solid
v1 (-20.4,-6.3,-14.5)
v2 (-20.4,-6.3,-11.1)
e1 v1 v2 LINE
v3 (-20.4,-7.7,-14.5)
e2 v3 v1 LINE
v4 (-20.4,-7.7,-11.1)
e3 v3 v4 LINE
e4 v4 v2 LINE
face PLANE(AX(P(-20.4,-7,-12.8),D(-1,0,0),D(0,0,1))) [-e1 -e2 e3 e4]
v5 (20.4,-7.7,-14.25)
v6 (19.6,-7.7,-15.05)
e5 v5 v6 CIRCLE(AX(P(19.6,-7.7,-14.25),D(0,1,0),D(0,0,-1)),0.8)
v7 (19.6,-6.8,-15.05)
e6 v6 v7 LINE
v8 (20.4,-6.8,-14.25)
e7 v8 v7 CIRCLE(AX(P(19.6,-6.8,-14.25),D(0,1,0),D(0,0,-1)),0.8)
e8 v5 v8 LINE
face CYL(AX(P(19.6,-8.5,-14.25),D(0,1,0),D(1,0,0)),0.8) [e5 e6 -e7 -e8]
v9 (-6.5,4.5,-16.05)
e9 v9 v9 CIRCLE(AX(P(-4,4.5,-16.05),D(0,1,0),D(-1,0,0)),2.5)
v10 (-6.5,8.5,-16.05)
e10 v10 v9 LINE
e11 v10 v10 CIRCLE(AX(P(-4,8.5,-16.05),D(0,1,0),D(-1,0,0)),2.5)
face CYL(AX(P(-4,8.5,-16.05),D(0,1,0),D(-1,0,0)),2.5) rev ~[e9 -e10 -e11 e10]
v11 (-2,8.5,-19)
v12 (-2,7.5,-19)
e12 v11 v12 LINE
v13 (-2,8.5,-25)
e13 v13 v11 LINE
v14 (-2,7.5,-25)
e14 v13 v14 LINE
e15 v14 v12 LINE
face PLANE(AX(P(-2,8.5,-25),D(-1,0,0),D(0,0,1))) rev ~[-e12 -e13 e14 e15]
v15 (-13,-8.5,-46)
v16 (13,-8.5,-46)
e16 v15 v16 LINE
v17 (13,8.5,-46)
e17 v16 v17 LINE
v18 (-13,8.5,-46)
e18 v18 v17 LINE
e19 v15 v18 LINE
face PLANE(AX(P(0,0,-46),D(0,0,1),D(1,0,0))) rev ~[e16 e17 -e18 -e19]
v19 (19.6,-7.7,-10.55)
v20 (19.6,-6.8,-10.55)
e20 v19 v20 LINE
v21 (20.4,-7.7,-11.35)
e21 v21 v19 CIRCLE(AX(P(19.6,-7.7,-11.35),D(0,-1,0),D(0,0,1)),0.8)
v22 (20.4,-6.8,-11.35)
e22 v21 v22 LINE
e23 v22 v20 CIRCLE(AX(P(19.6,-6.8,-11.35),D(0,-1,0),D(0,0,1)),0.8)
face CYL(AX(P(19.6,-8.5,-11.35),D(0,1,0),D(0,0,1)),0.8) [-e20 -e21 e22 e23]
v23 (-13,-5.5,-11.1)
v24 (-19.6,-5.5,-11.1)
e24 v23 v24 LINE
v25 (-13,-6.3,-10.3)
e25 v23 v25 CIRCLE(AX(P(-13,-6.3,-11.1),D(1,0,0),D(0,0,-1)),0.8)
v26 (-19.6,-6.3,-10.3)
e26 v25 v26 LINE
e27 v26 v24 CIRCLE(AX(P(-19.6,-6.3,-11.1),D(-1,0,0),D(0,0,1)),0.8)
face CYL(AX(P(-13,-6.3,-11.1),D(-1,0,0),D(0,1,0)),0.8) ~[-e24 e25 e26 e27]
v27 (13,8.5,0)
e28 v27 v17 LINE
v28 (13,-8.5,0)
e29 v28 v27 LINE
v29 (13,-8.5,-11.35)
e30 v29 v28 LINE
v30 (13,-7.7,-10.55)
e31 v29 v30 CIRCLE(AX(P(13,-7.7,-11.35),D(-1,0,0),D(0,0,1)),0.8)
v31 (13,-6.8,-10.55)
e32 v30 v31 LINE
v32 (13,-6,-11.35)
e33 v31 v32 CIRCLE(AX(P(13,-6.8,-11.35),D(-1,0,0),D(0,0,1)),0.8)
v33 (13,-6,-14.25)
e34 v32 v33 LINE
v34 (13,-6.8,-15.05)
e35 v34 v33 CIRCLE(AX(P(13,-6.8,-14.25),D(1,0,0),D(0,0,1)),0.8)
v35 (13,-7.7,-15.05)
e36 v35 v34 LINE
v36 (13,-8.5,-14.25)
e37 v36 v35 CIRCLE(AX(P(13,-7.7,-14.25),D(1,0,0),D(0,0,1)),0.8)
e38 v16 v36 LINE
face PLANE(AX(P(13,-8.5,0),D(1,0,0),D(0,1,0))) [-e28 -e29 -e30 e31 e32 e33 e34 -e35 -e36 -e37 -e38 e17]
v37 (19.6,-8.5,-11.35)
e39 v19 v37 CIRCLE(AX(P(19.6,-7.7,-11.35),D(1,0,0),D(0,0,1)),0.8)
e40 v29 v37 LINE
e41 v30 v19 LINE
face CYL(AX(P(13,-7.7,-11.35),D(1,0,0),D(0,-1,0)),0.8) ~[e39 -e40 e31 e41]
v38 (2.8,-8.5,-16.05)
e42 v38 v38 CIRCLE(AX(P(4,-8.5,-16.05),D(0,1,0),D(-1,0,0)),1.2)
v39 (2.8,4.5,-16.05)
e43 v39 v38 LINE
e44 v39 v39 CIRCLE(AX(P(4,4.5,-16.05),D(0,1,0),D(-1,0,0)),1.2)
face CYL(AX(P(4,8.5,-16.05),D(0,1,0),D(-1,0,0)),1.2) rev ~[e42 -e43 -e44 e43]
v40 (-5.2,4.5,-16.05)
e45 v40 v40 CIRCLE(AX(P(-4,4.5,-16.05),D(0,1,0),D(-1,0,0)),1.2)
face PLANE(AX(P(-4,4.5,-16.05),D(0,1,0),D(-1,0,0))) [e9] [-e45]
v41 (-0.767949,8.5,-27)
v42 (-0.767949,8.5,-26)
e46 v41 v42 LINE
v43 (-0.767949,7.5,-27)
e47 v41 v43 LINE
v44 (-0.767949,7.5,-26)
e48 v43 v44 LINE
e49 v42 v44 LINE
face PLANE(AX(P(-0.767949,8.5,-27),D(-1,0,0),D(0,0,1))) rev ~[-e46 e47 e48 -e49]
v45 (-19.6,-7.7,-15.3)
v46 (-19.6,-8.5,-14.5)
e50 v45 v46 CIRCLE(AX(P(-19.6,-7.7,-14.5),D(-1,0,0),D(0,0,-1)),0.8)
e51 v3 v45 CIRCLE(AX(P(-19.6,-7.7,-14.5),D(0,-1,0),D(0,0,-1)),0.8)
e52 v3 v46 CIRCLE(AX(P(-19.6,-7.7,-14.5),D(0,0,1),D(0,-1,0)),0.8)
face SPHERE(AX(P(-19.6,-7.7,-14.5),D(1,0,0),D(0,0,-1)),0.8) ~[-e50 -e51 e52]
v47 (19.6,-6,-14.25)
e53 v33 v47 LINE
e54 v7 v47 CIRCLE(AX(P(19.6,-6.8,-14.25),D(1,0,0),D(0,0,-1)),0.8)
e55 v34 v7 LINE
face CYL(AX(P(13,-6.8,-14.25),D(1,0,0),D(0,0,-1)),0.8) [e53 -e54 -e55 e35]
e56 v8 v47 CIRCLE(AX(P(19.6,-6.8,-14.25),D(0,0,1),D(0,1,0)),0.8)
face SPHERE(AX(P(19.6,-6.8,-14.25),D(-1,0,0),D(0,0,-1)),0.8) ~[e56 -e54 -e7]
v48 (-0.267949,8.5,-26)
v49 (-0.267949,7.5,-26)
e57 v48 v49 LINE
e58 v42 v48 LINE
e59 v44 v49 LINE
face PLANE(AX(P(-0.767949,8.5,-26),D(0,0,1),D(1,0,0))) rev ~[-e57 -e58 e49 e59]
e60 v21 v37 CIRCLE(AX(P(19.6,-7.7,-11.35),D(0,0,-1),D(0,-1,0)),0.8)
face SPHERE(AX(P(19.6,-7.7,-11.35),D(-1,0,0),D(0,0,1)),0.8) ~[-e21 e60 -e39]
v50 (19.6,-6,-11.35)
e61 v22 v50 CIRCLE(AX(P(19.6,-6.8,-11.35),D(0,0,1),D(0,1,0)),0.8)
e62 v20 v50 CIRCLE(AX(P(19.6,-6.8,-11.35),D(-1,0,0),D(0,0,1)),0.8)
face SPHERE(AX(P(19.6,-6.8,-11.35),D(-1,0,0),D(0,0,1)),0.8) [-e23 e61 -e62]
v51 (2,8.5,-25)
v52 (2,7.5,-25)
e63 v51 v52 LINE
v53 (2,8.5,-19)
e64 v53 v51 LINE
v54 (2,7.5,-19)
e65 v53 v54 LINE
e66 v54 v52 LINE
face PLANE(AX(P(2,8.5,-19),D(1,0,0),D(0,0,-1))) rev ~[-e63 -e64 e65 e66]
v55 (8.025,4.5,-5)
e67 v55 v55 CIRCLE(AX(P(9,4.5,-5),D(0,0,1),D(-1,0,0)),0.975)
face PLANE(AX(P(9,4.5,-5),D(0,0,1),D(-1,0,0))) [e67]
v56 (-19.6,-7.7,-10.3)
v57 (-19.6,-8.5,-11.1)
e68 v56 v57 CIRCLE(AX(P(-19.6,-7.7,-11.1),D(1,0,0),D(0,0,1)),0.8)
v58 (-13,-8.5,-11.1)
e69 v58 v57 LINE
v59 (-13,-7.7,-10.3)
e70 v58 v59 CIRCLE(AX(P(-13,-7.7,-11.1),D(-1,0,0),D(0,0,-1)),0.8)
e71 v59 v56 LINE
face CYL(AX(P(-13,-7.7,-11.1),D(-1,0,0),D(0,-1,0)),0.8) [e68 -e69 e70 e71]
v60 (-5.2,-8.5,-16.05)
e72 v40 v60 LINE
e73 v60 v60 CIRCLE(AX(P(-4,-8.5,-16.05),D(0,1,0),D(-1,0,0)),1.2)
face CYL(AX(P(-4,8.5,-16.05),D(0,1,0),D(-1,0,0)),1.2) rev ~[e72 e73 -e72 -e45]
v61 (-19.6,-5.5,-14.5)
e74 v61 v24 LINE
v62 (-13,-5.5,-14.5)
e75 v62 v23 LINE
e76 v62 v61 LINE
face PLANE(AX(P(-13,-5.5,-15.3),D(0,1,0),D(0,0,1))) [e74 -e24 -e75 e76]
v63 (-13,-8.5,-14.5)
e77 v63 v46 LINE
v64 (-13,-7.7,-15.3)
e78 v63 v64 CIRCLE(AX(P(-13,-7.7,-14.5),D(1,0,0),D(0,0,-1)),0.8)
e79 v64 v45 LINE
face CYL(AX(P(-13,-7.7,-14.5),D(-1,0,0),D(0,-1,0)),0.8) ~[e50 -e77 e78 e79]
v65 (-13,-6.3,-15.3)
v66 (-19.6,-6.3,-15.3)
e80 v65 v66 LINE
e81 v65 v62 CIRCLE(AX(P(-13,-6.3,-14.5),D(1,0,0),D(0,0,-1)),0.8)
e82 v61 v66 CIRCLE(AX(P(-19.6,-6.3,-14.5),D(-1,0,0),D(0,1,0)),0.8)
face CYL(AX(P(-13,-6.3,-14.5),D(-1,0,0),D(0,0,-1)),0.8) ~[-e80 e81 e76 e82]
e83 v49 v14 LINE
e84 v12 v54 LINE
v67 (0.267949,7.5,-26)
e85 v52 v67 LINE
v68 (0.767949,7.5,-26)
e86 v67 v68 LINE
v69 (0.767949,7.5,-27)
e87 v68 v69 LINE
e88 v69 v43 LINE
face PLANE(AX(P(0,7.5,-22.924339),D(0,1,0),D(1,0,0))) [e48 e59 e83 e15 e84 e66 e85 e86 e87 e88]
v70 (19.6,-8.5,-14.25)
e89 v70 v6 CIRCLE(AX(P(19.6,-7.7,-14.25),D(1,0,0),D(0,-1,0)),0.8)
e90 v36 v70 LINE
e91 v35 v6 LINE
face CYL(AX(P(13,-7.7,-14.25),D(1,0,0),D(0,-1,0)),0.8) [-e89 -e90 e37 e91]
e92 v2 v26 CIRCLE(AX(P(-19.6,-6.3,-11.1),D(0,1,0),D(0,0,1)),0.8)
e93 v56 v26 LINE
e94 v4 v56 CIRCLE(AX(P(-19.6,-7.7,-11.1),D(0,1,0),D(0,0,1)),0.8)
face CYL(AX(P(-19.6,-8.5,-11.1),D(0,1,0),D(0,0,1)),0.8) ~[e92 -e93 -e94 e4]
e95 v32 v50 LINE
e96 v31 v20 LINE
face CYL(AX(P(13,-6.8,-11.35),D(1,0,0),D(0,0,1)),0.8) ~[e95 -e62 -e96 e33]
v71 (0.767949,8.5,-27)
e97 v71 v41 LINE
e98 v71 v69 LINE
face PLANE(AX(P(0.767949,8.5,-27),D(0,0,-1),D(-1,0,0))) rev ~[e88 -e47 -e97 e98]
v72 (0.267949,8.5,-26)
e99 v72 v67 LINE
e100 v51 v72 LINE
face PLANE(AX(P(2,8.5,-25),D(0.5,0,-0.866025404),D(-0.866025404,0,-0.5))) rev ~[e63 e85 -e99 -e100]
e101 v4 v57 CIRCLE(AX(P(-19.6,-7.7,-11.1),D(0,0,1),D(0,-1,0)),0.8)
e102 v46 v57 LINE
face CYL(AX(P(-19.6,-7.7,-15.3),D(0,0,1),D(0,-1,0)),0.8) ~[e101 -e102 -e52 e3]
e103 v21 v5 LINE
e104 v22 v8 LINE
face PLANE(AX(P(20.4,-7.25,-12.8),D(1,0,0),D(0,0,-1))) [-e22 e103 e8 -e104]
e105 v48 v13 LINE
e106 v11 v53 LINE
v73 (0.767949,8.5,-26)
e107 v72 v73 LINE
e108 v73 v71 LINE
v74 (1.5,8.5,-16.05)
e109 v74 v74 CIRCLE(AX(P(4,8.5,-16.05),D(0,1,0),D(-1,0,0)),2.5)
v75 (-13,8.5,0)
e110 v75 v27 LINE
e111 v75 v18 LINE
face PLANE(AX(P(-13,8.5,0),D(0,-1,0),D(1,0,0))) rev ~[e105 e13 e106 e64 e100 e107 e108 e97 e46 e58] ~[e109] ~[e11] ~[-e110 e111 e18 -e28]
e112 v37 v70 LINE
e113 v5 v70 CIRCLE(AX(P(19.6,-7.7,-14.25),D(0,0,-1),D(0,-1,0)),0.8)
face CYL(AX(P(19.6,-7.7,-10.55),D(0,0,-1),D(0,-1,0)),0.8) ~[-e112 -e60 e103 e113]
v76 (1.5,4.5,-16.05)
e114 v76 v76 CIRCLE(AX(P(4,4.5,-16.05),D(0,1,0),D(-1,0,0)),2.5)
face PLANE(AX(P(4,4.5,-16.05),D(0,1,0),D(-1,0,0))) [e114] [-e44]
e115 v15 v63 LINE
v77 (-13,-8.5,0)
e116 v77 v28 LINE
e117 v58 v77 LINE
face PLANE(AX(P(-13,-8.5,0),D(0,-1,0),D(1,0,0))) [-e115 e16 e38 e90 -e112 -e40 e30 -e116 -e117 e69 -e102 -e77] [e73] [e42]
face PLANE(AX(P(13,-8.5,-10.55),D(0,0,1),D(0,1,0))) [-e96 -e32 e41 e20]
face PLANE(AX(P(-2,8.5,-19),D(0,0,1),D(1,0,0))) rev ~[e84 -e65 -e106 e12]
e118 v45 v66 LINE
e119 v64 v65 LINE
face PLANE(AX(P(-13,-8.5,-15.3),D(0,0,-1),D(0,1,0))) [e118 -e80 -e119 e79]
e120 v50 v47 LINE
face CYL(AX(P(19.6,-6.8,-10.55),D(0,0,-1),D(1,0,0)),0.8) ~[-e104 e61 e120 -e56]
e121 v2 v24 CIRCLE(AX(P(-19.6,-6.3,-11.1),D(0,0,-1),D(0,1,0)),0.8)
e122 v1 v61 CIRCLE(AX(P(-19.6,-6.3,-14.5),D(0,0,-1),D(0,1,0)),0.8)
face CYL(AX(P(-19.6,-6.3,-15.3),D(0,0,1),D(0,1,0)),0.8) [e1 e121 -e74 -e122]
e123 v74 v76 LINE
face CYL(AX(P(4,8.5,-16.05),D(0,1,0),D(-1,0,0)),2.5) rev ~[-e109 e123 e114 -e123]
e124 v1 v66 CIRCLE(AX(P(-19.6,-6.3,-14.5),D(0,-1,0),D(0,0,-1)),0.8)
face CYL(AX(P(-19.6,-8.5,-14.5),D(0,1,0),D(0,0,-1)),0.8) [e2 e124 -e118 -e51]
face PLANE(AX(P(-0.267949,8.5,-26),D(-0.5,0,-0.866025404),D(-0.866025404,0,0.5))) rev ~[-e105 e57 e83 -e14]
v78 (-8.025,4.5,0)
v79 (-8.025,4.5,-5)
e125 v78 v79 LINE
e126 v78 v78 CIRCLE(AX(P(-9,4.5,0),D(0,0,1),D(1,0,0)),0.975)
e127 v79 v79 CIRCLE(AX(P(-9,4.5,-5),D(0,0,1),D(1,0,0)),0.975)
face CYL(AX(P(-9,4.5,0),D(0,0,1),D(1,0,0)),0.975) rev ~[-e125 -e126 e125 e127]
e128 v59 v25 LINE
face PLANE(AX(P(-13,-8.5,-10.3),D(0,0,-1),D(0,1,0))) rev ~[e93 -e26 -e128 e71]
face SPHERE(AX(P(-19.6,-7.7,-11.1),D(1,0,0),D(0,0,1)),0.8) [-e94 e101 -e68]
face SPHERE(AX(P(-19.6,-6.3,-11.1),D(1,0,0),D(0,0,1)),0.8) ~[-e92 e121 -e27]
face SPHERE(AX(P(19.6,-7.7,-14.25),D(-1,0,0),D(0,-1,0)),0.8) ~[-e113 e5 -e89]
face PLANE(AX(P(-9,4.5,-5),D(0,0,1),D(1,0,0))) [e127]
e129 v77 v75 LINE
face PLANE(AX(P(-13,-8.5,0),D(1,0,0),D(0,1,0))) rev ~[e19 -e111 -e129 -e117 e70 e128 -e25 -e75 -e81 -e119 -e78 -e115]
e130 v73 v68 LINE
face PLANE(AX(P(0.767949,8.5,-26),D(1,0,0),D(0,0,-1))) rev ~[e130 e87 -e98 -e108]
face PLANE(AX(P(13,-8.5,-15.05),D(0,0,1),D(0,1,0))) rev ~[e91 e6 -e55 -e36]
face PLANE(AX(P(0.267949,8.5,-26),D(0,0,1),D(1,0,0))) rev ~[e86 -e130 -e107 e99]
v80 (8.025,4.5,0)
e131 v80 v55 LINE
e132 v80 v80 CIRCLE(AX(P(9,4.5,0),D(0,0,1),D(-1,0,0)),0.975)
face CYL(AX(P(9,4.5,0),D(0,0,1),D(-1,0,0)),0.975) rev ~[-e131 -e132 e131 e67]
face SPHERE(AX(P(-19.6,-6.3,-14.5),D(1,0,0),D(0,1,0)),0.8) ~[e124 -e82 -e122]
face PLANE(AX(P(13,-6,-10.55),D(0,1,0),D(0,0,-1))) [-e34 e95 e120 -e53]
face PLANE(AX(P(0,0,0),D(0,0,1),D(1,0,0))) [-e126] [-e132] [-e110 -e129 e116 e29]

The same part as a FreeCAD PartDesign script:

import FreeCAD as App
import Part
import Sketcher
Q = App.Units.Quantity


def edges_at(feature, points):
    """Names of the edges that pass closest to the given points."""
    edges = feature.Shape.Edges
    near = lambda p: min(range(len(edges)), key=lambda i: edges[i].distToShape(Part.Vertex(*p))[0])
    return sorted({f"Edge{near(p) + 1}" for p in points})


def add_polygon(sketch, points):
    """Adds a closed chain of lines whose ends are joined by coincident constraints."""
    first, n = sketch.GeometryCount, len(points)
    for a, b in zip(points, points[1:] + points[:1]):
        sketch.addGeometry(Part.LineSegment(App.Vector(*a, 0), App.Vector(*b, 0)), False)
    for i in range(n):
        sketch.addConstraint(Sketcher.Constraint("Coincident", first + i, 2, first + (i + 1) % n, 1))

doc = App.newDocument("Part")
body = doc.addObject("PartDesign::Body", "Body")

# Sketch on XY plane
sketch1 = body.newObject("Sketcher::SketchObject", "Sketch")
sketch1.AttachmentSupport = (doc.getObject("XY_Plane"), [""])
sketch1.MapMode = "FlatFace"
add_polygon(sketch1, [(-13, 8.5), (-13, -8.5), (13, -8.5), (13, 8.5)])  # lines 0-3
sketch1.addConstraint([
    Sketcher.Constraint("Vertical", 0),
    Sketcher.Constraint("Horizontal", 1),
    Sketcher.Constraint("Vertical", 2),
    Sketcher.Constraint("Horizontal", 3),
    Sketcher.Constraint("Symmetric", 0, 2, 2, 2, -1, 1),
    Sketcher.Constraint("DistanceX", 1, 1, 1, 2, Q("26 mm")),
    Sketcher.Constraint("DistanceY", 0, 2, 0, 1, Q("17 mm")),
])
pad1 = body.newObject("PartDesign::Pad", "Pad")
pad1.Profile = sketch1
pad1.Length = 46
pad1.Reversed = True

# Sketch on YZ plane
sketch2 = body.newObject("Sketcher::SketchObject", "Sketch001")
sketch2.AttachmentSupport = (doc.getObject("YZ_Plane"), [""])
sketch2.MapMode = "FlatFace"
sketch2.AttachmentOffset = App.Placement(App.Vector(0, 0, 13), App.Rotation())
add_polygon(sketch2, [(-6, -10.55), (-8.5, -10.55), (-8.5, -15.05), (-6, -15.05)])  # lines 0-3
sketch2.addConstraint([
    Sketcher.Constraint("Horizontal", 0),
    Sketcher.Constraint("Vertical", 1),
    Sketcher.Constraint("Horizontal", 2),
    Sketcher.Constraint("Vertical", 3),
    Sketcher.Constraint("DistanceX", 0, 2, 0, 1, Q("2.5 mm")),
    Sketcher.Constraint("DistanceY", 1, 2, 1, 1, Q("4.5 mm")),
    Sketcher.Constraint("DistanceX", 2, 2, -1, 1, Q("6 mm")),
    Sketcher.Constraint("DistanceY", 0, 2, -1, 1, Q("10.55 mm")),
])
pad2 = body.newObject("PartDesign::Pad", "Pad001")
pad2.Profile = sketch2
pad2.Length = 7.4

# Sketch on YZ plane
sketch3 = body.newObject("Sketcher::SketchObject", "Sketch002")
sketch3.AttachmentSupport = (doc.getObject("YZ_Plane"), [""])
sketch3.MapMode = "FlatFace"
sketch3.AttachmentOffset = App.Placement(App.Vector(0, 0, -13), App.Rotation())
add_polygon(sketch3, [(-5.5, -15.3), (-8.5, -15.3), (-8.5, -10.3), (-5.5, -10.3)])  # lines 0-3
sketch3.addConstraint([
    Sketcher.Constraint("Horizontal", 0),
    Sketcher.Constraint("Vertical", 1),
    Sketcher.Constraint("Horizontal", 2),
    Sketcher.Constraint("Vertical", 3),
    Sketcher.Constraint("DistanceX", 0, 2, 0, 1, Q("3 mm")),
    Sketcher.Constraint("DistanceY", 1, 1, 1, 2, Q("5 mm")),
    Sketcher.Constraint("DistanceX", 0, 2, -1, 1, Q("8.5 mm")),
    Sketcher.Constraint("DistanceY", 0, 2, -1, 1, Q("15.3 mm")),
])
pad3 = body.newObject("PartDesign::Pad", "Pad002")
pad3.Profile = sketch3
pad3.Length = 7.4
pad3.Reversed = True

# Sketch on XZ plane
sketch4 = body.newObject("Sketcher::SketchObject", "Sketch003")
sketch4.AttachmentSupport = (doc.getObject("XZ_Plane"), [""])
sketch4.MapMode = "FlatFace"
sketch4.AttachmentOffset = App.Placement(App.Vector(0, 0, -8.5), App.Rotation())
sketch4.addGeometry([
    Part.Circle(App.Vector(4, -16.05, 0), App.Vector(0, 0, 1), 1.2),
    Part.Circle(App.Vector(-4, -16.05, 0), App.Vector(0, 0, 1), 1.2),
], False)
sketch4.addConstraint([
    Sketcher.Constraint("Equal", 0, 1),
    Sketcher.Constraint("Symmetric", 0, 3, 1, 3, -2),
    Sketcher.Constraint("Diameter", 0, Q("2.4 mm")),
    Sketcher.Constraint("DistanceX", -1, 1, 0, 3, Q("4 mm")),
    Sketcher.Constraint("DistanceY", 0, 3, -1, 1, Q("16.05 mm")),
])
pocket1 = body.newObject("PartDesign::Pocket", "Pocket")
pocket1.Profile = sketch4
pocket1.Type = "ThroughAll"
pocket1.Reversed = True

# Sketch on XZ plane
sketch5 = body.newObject("Sketcher::SketchObject", "Sketch004")
sketch5.AttachmentSupport = (doc.getObject("XZ_Plane"), [""])
sketch5.MapMode = "FlatFace"
sketch5.AttachmentOffset = App.Placement(App.Vector(0, 0, -8.5), App.Rotation())
add_polygon(sketch5, [(-2, -19), (2, -19), (2, -25), (0.267949, -26), (0.767949, -26), (0.767949, -27), (-0.767949, -27), (-0.767949, -26), (-0.267949, -26), (-2, -25)])  # lines 0-9
sketch5.addConstraint([
    Sketcher.Constraint("Horizontal", 0),
    Sketcher.Constraint("Vertical", 1),
    Sketcher.Constraint("Horizontal", 3),
    Sketcher.Constraint("Vertical", 4),
    Sketcher.Constraint("Horizontal", 5),
    Sketcher.Constraint("Vertical", 6),
    Sketcher.Constraint("Horizontal", 7),
    Sketcher.Constraint("Vertical", 9),
    Sketcher.Constraint("Symmetric", 3, 2, 6, 2, -2),
    Sketcher.Constraint("Symmetric", 1, 2, 8, 2, -2),
    Sketcher.Constraint("Equal", 3, 7),
    Sketcher.Constraint("DistanceX", 0, 1, 0, 2, Q("4 mm")),
    Sketcher.Constraint("DistanceY", 1, 2, 1, 1, Q("6 mm")),
    Sketcher.Constraint("DistanceY", 4, 2, 4, 1, Q("1 mm")),
    Sketcher.Constraint("Angle", 2, Q("-150 deg")),
    Sketcher.Constraint("Distance", 2, Q("2 mm")),
    Sketcher.Constraint("DistanceX", 3, 1, 3, 2, Q("0.5 mm")),
    Sketcher.Constraint("DistanceY", 0, 2, -1, 1, Q("19 mm")),
])
pocket2 = body.newObject("PartDesign::Pocket", "Pocket001")
pocket2.Profile = sketch5
pocket2.Length = 1
pocket2.Reversed = True

# Sketch on XZ plane
sketch6 = body.newObject("Sketcher::SketchObject", "Sketch005")
sketch6.AttachmentSupport = (doc.getObject("XZ_Plane"), [""])
sketch6.MapMode = "FlatFace"
sketch6.AttachmentOffset = App.Placement(App.Vector(0, 0, -8.5), App.Rotation())
sketch6.addGeometry([
    Part.Circle(App.Vector(-4, -16.05, 0), App.Vector(0, 0, 1), 2.5),
    Part.Circle(App.Vector(4, -16.05, 0), App.Vector(0, 0, 1), 2.5),
], False)
sketch6.addConstraint([
    Sketcher.Constraint("Equal", 0, 1),
    Sketcher.Constraint("Symmetric", 0, 3, 1, 3, -2),
    Sketcher.Constraint("Diameter", 0, Q("5 mm")),
    Sketcher.Constraint("DistanceX", 0, 3, -1, 1, Q("4 mm")),
    Sketcher.Constraint("DistanceY", 0, 3, -1, 1, Q("16.05 mm")),
])
pocket3 = body.newObject("PartDesign::Pocket", "Pocket002")
pocket3.Profile = sketch6
pocket3.Length = 4
pocket3.Reversed = True

# Sketch on XY plane
sketch7 = body.newObject("Sketcher::SketchObject", "Sketch006")
sketch7.AttachmentSupport = (doc.getObject("XY_Plane"), [""])
sketch7.MapMode = "FlatFace"
sketch7.addGeometry([
    Part.Circle(App.Vector(-9, 4.5, 0), App.Vector(0, 0, 1), 0.975),
    Part.Circle(App.Vector(9, 4.5, 0), App.Vector(0, 0, 1), 0.975),
], False)
sketch7.addConstraint([
    Sketcher.Constraint("Equal", 0, 1),
    Sketcher.Constraint("Symmetric", 0, 3, 1, 3, -2),
    Sketcher.Constraint("Diameter", 0, Q("1.95 mm")),
    Sketcher.Constraint("DistanceX", 0, 3, -1, 1, Q("9 mm")),
    Sketcher.Constraint("DistanceY", -1, 1, 0, 3, Q("4.5 mm")),
])
pocket4 = body.newObject("PartDesign::Pocket", "Pocket003")
pocket4.Profile = sketch7
pocket4.Length = 5
doc.recompute()

fillet = body.newObject("PartDesign::Fillet", "Fillet")
fillet.Base = (pocket4, edges_at(pocket4, [
    (16.7, -6, -10.55),
    (16.7, -8.5, -10.55),
    (16.7, -8.5, -15.05),
    (16.7, -6, -15.05),
    (20.4, -7.25, -10.55),
    (20.4, -8.5, -12.8),
    (20.4, -7.25, -15.05),
    (20.4, -6, -12.8),
    (-16.7, -8.5, -10.3),
    (-16.7, -5.5, -10.3),
    (-16.7, -5.5, -15.3),
    (-16.7, -8.5, -15.3),
    (-20.4, -7, -10.3),
    (-20.4, -5.5, -12.8),
    (-20.4, -7, -15.3),
    (-20.4, -8.5, -12.8),
]))
fillet.Radius = 0.8

doc.recompute()
